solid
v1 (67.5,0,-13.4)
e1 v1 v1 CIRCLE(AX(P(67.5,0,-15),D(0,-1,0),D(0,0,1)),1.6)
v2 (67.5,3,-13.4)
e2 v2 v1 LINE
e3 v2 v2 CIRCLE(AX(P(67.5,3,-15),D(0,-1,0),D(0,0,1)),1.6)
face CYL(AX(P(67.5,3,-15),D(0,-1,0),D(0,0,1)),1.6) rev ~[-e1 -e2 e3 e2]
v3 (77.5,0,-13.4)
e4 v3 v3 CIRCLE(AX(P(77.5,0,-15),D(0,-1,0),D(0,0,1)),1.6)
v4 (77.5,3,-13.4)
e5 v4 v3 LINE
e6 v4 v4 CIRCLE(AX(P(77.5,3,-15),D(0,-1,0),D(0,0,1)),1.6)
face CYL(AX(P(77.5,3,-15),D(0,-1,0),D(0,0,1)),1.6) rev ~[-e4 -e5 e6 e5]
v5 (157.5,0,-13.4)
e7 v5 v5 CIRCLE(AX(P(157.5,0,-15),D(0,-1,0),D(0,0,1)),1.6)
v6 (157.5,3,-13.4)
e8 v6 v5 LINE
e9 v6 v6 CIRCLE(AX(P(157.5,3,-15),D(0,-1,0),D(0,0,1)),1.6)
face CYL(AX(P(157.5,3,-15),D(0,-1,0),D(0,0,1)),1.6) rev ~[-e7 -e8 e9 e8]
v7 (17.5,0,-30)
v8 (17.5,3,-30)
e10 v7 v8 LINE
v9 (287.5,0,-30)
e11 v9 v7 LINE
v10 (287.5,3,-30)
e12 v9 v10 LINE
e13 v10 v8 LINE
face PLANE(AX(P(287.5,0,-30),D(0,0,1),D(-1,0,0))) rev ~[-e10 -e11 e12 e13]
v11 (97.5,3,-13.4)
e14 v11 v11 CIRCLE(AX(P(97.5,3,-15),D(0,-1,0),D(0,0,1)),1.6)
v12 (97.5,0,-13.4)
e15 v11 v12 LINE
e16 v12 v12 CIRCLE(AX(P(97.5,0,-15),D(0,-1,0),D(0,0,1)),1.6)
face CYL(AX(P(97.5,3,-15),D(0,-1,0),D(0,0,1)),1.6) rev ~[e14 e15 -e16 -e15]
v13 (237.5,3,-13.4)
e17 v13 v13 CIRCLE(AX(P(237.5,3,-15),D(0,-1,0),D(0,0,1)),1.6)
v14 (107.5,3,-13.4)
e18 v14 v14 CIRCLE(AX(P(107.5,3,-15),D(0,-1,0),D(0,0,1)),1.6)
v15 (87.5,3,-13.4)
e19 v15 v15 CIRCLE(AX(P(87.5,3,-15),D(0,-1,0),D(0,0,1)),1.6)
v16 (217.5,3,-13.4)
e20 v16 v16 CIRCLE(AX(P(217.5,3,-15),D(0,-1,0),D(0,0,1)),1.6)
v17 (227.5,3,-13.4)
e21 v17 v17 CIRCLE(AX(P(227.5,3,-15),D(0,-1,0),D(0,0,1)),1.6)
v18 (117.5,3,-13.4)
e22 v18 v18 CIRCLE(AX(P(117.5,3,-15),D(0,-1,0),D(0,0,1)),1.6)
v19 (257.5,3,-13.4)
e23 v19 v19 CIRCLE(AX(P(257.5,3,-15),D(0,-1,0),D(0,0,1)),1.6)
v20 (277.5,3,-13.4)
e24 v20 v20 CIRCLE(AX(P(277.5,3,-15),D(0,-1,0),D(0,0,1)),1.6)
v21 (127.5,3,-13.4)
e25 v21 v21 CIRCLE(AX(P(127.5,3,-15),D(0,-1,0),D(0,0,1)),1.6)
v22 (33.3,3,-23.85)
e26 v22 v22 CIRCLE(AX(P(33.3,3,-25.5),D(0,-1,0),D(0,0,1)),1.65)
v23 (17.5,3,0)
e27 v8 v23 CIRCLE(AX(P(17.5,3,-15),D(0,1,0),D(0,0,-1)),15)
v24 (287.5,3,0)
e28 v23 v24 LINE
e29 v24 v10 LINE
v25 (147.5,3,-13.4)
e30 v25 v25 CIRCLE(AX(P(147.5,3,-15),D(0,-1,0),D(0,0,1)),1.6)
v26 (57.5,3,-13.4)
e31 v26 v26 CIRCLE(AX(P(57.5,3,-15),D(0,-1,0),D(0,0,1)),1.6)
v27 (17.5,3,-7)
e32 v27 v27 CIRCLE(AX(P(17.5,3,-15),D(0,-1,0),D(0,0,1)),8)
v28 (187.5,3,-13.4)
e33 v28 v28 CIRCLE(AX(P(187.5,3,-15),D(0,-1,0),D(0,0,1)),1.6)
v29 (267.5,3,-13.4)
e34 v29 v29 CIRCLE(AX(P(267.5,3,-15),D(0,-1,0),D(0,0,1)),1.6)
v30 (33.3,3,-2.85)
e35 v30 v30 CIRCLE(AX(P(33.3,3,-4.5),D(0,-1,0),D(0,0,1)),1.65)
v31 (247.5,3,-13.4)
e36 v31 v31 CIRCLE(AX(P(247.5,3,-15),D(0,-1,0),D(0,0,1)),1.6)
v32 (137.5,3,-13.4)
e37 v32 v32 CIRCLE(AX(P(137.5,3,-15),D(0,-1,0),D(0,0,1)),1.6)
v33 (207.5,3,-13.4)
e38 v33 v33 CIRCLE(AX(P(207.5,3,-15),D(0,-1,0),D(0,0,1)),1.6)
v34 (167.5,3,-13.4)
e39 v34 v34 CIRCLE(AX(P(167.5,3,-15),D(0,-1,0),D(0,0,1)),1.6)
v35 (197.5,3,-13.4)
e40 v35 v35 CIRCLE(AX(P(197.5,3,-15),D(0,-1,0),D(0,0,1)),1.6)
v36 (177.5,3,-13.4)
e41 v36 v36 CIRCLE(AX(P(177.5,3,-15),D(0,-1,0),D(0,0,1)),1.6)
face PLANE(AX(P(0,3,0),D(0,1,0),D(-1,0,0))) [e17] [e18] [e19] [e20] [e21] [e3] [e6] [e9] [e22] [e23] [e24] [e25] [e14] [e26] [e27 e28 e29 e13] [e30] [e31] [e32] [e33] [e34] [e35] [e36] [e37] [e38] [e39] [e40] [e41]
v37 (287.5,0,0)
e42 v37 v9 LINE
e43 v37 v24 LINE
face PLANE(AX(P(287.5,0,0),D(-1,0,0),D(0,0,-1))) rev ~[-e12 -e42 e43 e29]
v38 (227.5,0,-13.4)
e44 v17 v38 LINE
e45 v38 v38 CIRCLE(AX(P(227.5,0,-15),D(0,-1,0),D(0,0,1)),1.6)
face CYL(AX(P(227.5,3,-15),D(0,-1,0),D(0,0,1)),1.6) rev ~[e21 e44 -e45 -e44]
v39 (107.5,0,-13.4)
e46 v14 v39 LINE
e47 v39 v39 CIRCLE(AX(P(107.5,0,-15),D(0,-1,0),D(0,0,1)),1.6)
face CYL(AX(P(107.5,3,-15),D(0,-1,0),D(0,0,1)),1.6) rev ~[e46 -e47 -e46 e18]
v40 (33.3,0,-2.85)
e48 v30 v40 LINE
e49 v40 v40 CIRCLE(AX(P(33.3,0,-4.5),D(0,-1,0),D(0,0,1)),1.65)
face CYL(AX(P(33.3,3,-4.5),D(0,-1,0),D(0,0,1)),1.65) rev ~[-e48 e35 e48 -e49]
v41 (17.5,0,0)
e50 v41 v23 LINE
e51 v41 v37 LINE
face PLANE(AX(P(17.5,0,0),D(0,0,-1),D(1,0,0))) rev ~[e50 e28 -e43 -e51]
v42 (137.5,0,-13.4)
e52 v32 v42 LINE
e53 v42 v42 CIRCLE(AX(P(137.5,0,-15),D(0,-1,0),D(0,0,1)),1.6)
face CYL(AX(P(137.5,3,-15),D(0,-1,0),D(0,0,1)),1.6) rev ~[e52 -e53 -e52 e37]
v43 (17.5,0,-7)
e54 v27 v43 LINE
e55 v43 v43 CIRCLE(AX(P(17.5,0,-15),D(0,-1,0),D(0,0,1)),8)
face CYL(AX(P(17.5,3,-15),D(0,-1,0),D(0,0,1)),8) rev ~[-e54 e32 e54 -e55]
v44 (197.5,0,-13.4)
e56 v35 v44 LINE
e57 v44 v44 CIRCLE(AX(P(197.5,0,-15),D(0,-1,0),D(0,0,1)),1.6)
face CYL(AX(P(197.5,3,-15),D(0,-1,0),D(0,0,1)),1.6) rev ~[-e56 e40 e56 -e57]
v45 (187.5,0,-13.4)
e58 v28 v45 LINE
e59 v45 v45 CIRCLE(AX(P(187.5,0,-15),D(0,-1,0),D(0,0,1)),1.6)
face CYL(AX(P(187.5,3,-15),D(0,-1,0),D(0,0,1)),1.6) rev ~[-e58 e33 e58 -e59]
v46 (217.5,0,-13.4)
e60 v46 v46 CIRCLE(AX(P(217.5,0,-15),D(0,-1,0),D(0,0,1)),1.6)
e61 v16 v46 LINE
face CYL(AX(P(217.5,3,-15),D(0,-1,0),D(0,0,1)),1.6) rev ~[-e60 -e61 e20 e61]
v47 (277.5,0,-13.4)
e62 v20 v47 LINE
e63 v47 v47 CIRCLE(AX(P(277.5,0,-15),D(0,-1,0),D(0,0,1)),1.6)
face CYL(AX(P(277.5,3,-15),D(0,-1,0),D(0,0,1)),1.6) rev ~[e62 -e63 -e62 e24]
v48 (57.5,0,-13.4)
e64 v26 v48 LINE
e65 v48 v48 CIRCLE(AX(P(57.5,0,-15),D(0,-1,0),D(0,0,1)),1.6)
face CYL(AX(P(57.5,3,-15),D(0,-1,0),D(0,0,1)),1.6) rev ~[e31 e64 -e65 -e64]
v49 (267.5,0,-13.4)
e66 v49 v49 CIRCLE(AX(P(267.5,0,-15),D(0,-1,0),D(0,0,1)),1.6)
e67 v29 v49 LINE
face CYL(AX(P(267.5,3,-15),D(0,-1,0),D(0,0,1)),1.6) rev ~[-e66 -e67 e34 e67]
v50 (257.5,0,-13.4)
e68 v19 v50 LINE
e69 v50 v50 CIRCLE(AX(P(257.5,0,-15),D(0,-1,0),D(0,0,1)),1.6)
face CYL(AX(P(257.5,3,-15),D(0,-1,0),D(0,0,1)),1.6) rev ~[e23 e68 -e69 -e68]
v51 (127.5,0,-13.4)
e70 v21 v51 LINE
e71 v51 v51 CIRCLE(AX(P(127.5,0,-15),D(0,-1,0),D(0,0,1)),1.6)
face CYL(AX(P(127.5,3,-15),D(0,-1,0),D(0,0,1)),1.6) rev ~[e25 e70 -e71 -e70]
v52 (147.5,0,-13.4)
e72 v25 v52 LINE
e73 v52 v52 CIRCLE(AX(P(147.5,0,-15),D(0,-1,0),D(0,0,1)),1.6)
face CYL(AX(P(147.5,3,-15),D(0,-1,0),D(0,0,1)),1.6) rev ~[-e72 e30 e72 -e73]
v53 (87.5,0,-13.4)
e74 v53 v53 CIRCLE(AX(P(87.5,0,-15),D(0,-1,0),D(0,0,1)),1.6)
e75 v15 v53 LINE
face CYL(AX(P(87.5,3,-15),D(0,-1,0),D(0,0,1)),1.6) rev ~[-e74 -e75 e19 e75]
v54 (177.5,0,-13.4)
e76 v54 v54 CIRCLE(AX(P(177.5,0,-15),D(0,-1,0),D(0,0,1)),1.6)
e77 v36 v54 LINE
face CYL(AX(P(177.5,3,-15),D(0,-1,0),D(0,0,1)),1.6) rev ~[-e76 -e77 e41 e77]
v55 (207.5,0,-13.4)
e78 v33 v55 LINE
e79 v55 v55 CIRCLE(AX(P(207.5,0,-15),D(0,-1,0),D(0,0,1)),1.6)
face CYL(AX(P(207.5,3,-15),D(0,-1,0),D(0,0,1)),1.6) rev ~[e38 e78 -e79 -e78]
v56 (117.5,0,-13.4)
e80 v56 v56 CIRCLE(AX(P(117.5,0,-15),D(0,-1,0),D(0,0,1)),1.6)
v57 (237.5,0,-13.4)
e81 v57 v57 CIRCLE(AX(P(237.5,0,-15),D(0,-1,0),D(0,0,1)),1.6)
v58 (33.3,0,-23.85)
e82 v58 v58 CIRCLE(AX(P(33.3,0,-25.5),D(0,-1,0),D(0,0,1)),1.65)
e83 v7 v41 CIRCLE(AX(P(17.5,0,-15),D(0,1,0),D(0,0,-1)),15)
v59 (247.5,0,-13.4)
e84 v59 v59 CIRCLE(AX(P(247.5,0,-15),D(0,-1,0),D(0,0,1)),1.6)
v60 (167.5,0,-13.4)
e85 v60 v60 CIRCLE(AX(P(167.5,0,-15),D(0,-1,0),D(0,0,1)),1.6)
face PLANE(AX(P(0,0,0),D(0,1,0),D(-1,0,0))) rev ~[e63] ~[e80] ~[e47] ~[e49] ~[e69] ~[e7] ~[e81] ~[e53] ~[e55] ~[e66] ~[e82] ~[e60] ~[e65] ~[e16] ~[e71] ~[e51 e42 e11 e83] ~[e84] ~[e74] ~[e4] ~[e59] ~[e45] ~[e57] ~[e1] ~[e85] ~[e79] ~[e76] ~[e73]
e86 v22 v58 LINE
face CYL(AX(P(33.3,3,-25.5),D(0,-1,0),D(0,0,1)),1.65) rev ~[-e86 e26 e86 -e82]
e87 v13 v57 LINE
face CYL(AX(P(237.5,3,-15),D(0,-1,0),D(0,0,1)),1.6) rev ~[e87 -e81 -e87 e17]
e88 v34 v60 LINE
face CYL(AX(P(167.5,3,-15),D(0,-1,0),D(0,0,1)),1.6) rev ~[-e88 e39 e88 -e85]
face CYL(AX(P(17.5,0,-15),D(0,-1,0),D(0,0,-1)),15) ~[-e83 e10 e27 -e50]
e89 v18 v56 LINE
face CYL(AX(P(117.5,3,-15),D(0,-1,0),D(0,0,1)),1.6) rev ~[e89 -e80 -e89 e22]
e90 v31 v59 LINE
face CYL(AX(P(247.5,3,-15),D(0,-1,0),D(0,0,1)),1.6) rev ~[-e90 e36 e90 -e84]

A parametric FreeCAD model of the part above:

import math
import FreeCAD as App
import Part
import Sketcher
Q = App.Units.Quantity

doc = App.newDocument("Part")
params = doc.addObject("Spreadsheet::Sheet", "Params")
for row, (alias, value) in enumerate([
    ("sketch1_radius", "15 mm"),
    ("pad1_length", "3 mm"),
    ("sketch2_diameter", "16 mm"),
    ("hole_diameter", "16 mm"),
    ("sketch3_diameter", "3.3 mm"),
    ("hole2_diameter", "3.3 mm"),
    ("sketch4_diameter", "3.2 mm"),
    ("hole3_diameter", "3.2 mm"),
], start=1):
    params.set(f"A{row}", alias)
    params.set(f"B{row}", "=" + value)
    params.setAlias(f"B{row}", alias)

body = doc.addObject("PartDesign::Body", "Body")

# Sketch on XZ plane
sketch1 = doc.addObject("Sketcher::SketchObject", "Sketch")
body.addObject(sketch1)
sketch1.AttachmentSupport = (doc.XZ_Plane, [""])
sketch1.MapMode = "FlatFace"
sketch1.addGeometry(Part.ArcOfCircle(Part.Circle(App.Vector(18, -15, 0), App.Vector(0, 0, 1), 15), math.radians(90), math.radians(270)), False)
sketch1.addGeometry(Part.LineSegment(App.Vector(18, 0, 0), App.Vector(288, 0, 0)), False)
sketch1.addGeometry(Part.LineSegment(App.Vector(288, 0, 0), App.Vector(288, -30, 0)), False)
sketch1.addGeometry(Part.LineSegment(App.Vector(288, -30, 0), App.Vector(18, -30, 0)), False)
sketch1.addConstraint(Sketcher.Constraint("Tangent", 0, 1, 1, 1))
sketch1.addConstraint(Sketcher.Constraint("Coincident", 1, 2, 2, 1))
sketch1.addConstraint(Sketcher.Constraint("Coincident", 2, 2, 3, 1))
sketch1.addConstraint(Sketcher.Constraint("Tangent", 3, 2, 0, 2))
sketch1.addConstraint(Sketcher.Constraint("Horizontal", 1))
sketch1.addConstraint(Sketcher.Constraint("Vertical", 2))
sketch1.addConstraint(Sketcher.Constraint("Horizontal", 3))
sketch1.addConstraint(Sketcher.Constraint("PointOnObject", 0, 1, -1))
sketch1.addConstraint(Sketcher.Constraint("Radius", 0, Q("15 mm")))
sketch1.addConstraint(Sketcher.Constraint("DistanceX", -1, 1, 0, 3, Q("17.5 mm")))
sketch1.addConstraint(Sketcher.Constraint("DistanceX", -1, 1, 1, 2, Q("287.5 mm")))
sketch1.setExpression("Constraints[8]", "Params.sketch1_radius")
pad1 = doc.addObject("PartDesign::Pad", "Pad")
body.addObject(pad1)
pad1.Profile = sketch1
pad1.setExpression("Length", "Params.pad1_length")
pad1.Reversed = True

# Sketch on XZ plane
sketch2 = doc.addObject("Sketcher::SketchObject", "Sketch001")
body.addObject(sketch2)
sketch2.AttachmentSupport = (doc.XZ_Plane, [""])
sketch2.MapMode = "FlatFace"
sketch2.AttachmentOffset = App.Placement(App.Vector(0, 0, -3), App.Rotation())
sketch2.addGeometry(Part.Circle(App.Vector(18, -15, 0), App.Vector(0, 0, 1), 8), False)
sketch2.addConstraint(Sketcher.Constraint("Diameter", 0, Q("16 mm")))
sketch2.addConstraint(Sketcher.Constraint("DistanceY", 0, 3, -1, 1, Q("15 mm")))
sketch2.addConstraint(Sketcher.Constraint("DistanceX", -1, 1, 0, 3, Q("17.5 mm")))
sketch2.setExpression("Constraints[0]", "Params.sketch2_diameter")
doc.recompute()
hole = doc.addObject("PartDesign::Hole", "Hole")
body.addObject(hole)
hole.Profile = sketch2
hole.ThreadType = "None"
hole.setExpression("Diameter", "Params.hole_diameter")
hole.DepthType = "ThroughAll"
hole.Reversed = True

# Sketch on XZ plane
sketch3 = doc.addObject("Sketcher::SketchObject", "Sketch002")
body.addObject(sketch3)
sketch3.AttachmentSupport = (doc.XZ_Plane, [""])
sketch3.MapMode = "FlatFace"
sketch3.AttachmentOffset = App.Placement(App.Vector(0, 0, -3), App.Rotation())
sketch3.addGeometry(Part.Circle(App.Vector(33.3, -4.5, 0), App.Vector(0, 0, 1), 1.6), False)
sketch3.addGeometry(Part.Circle(App.Vector(33.3, -25.5, 0), App.Vector(0, 0, 1), 1.6), False)
sketch3.addConstraint(Sketcher.Constraint("Equal", 0, 1))
sketch3.addConstraint(Sketcher.Constraint("Vertical", 0, 3, 1, 3))
sketch3.addConstraint(Sketcher.Constraint("Diameter", 0, Q("3.3 mm")))
sketch3.addConstraint(Sketcher.Constraint("DistanceY", 1, 3, 0, 3, Q("21 mm")))
sketch3.addConstraint(Sketcher.Constraint("DistanceX", -1, 1, 0, 3, Q("33.3 mm")))
sketch3.addConstraint(Sketcher.Constraint("DistanceY", 0, 3, -1, 1, Q("4.5 mm")))
sketch3.setExpression("Constraints[2]", "Params.sketch3_diameter")
doc.recompute()
hole2 = doc.addObject("PartDesign::Hole", "Hole001")
body.addObject(hole2)
hole2.Profile = sketch3
hole2.ThreadType = "None"
hole2.setExpression("Diameter", "Params.hole2_diameter")
hole2.DepthType = "ThroughAll"
hole2.Reversed = True

# Sketch on XZ plane
sketch4 = doc.addObject("Sketcher::SketchObject", "Sketch003")
body.addObject(sketch4)
sketch4.AttachmentSupport = (doc.XZ_Plane, [""])
sketch4.MapMode = "FlatFace"
sketch4.AttachmentOffset = App.Placement(App.Vector(0, 0, -3), App.Rotation())
sketch4.addGeometry(Part.Circle(App.Vector(57.5, -15, 0), App.Vector(0, 0, 1), 1.6), False)
sketch4.addGeometry(Part.Circle(App.Vector(67.5, -15, 0), App.Vector(0, 0, 1), 1.6), False)
sketch4.addGeometry(Part.Circle(App.Vector(77.5, -15, 0), App.Vector(0, 0, 1), 1.6), False)
sketch4.addGeometry(Part.Circle(App.Vector(87.5, -15, 0), App.Vector(0, 0, 1), 1.6), False)
sketch4.addGeometry(Part.Circle(App.Vector(97.5, -15, 0), App.Vector(0, 0, 1), 1.6), False)
sketch4.addGeometry(Part.Circle(App.Vector(107.5, -15, 0), App.Vector(0, 0, 1), 1.6), False)
sketch4.addGeometry(Part.Circle(App.Vector(117.5, -15, 0), App.Vector(0, 0, 1), 1.6), False)
sketch4.addGeometry(Part.Circle(App.Vector(127.5, -15, 0), App.Vector(0, 0, 1), 1.6), False)
sketch4.addGeometry(Part.Circle(App.Vector(137.5, -15, 0), App.Vector(0, 0, 1), 1.6), False)
sketch4.addGeometry(Part.Circle(App.Vector(147.5, -15, 0), App.Vector(0, 0, 1), 1.6), False)
sketch4.addGeometry(Part.Circle(App.Vector(157.5, -15, 0), App.Vector(0, 0, 1), 1.6), False)
sketch4.addGeometry(Part.Circle(App.Vector(167.5, -15, 0), App.Vector(0, 0, 1), 1.6), False)
sketch4.addGeometry(Part.Circle(App.Vector(177.5, -15, 0), App.Vector(0, 0, 1), 1.6), False)
sketch4.addGeometry(Part.Circle(App.Vector(187.5, -15, 0), App.Vector(0, 0, 1), 1.6), False)
sketch4.addGeometry(Part.Circle(App.Vector(197.5, -15, 0), App.Vector(0, 0, 1), 1.6), False)
sketch4.addGeometry(Part.Circle(App.Vector(207.5, -15, 0), App.Vector(0, 0, 1), 1.6), False)
sketch4.addGeometry(Part.Circle(App.Vector(217.5, -15, 0), App.Vector(0, 0, 1), 1.6), False)
sketch4.addGeometry(Part.Circle(App.Vector(227.5, -15, 0), App.Vector(0, 0, 1), 1.6), False)
sketch4.addGeometry(Part.Circle(App.Vector(237.5, -15, 0), App.Vector(0, 0, 1), 1.6), False)
sketch4.addGeometry(Part.Circle(App.Vector(247.5, -15, 0), App.Vector(0, 0, 1), 1.6), False)
sketch4.addGeometry(Part.Circle(App.Vector(257.5, -15, 0), App.Vector(0, 0, 1), 1.6), False)
sketch4.addGeometry(Part.Circle(App.Vector(267.5, -15, 0), App.Vector(0, 0, 1), 1.6), False)
sketch4.addGeometry(Part.Circle(App.Vector(277.5, -15, 0), App.Vector(0, 0, 1), 1.6), False)
sketch4.addConstraint(Sketcher.Constraint("Equal", 0, 1))
sketch4.addConstraint(Sketcher.Constraint("Equal", 1, 2))
sketch4.addConstraint(Sketcher.Constraint("Equal", 2, 3))
sketch4.addConstraint(Sketcher.Constraint("Equal", 3, 4))
sketch4.addConstraint(Sketcher.Constraint("Equal", 4, 5))
sketch4.addConstraint(Sketcher.Constraint("Equal", 5, 6))
sketch4.addConstraint(Sketcher.Constraint("Equal", 6, 7))
sketch4.addConstraint(Sketcher.Constraint("Equal", 7, 8))
sketch4.addConstraint(Sketcher.Constraint("Equal", 8, 9))
sketch4.addConstraint(Sketcher.Constraint("Equal", 9, 10))
sketch4.addConstraint(Sketcher.Constraint("Equal", 10, 11))
sketch4.addConstraint(Sketcher.Constraint("Equal", 11, 12))
sketch4.addConstraint(Sketcher.Constraint("Equal", 12, 13))
sketch4.addConstraint(Sketcher.Constraint("Equal", 13, 14))
sketch4.addConstraint(Sketcher.Constraint("Equal", 14, 15))
sketch4.addConstraint(Sketcher.Constraint("Equal", 15, 16))
sketch4.addConstraint(Sketcher.Constraint("Equal", 16, 17))
sketch4.addConstraint(Sketcher.Constraint("Equal", 17, 18))
sketch4.addConstraint(Sketcher.Constraint("Equal", 18, 19))
sketch4.addConstraint(Sketcher.Constraint("Equal", 19, 20))
sketch4.addConstraint(Sketcher.Constraint("Equal", 20, 21))
sketch4.addConstraint(Sketcher.Constraint("Equal", 21, 22))
sketch4.addConstraint(Sketcher.Constraint("Horizontal", 0, 3, 1, 3))
sketch4.addConstraint(Sketcher.Constraint("Horizontal", 1, 3, 2, 3))
sketch4.addConstraint(Sketcher.Constraint("Horizontal", 2, 3, 3, 3))
sketch4.addConstraint(Sketcher.Constraint("Horizontal", 3, 3, 4, 3))
sketch4.addConstraint(Sketcher.Constraint("Horizontal", 4, 3, 5, 3))
sketch4.addConstraint(Sketcher.Constraint("Horizontal", 5, 3, 6, 3))
sketch4.addConstraint(Sketcher.Constraint("Horizontal", 6, 3, 7, 3))
sketch4.addConstraint(Sketcher.Constraint("Horizontal", 7, 3, 8, 3))
sketch4.addConstraint(Sketcher.Constraint("Horizontal", 8, 3, 9, 3))
sketch4.addConstraint(Sketcher.Constraint("Horizontal", 9, 3, 10, 3))
sketch4.addConstraint(Sketcher.Constraint("Horizontal", 10, 3, 11, 3))
sketch4.addConstraint(Sketcher.Constraint("Horizontal", 11, 3, 12, 3))
sketch4.addConstraint(Sketcher.Constraint("Horizontal", 12, 3, 13, 3))
sketch4.addConstraint(Sketcher.Constraint("Horizontal", 13, 3, 14, 3))
sketch4.addConstraint(Sketcher.Constraint("Horizontal", 14, 3, 15, 3))
sketch4.addConstraint(Sketcher.Constraint("Horizontal", 15, 3, 16, 3))
sketch4.addConstraint(Sketcher.Constraint("Horizontal", 16, 3, 17, 3))
sketch4.addConstraint(Sketcher.Constraint("Horizontal", 17, 3, 18, 3))
sketch4.addConstraint(Sketcher.Constraint("Horizontal", 18, 3, 19, 3))
sketch4.addConstraint(Sketcher.Constraint("Horizontal", 19, 3, 20, 3))
sketch4.addConstraint(Sketcher.Constraint("Horizontal", 20, 3, 21, 3))
sketch4.addConstraint(Sketcher.Constraint("Horizontal", 21, 3, 22, 3))
sketch4.addConstraint(Sketcher.Constraint("Diameter", 0, Q("3.2 mm")))
sketch4.addConstraint(Sketcher.Constraint("DistanceY", 0, 3, -1, 1, Q("15 mm")))
sketch4.addConstraint(Sketcher.Constraint("DistanceX", 0, 3, 1, 3, Q("10 mm")))
sketch4.addConstraint(Sketcher.Constraint("DistanceX", 1, 3, 2, 3, Q("10 mm")))
sketch4.addConstraint(Sketcher.Constraint("DistanceX", 2, 3, 3, 3, Q("10 mm")))
sketch4.addConstraint(Sketcher.Constraint("DistanceX", 3, 3, 4, 3, Q("10 mm")))
sketch4.addConstraint(Sketcher.Constraint("DistanceX", 4, 3, 5, 3, Q("10 mm")))
sketch4.addConstraint(Sketcher.Constraint("DistanceX", 5, 3, 6, 3, Q("10 mm")))
sketch4.addConstraint(Sketcher.Constraint("DistanceX", 6, 3, 7, 3, Q("10 mm")))
sketch4.addConstraint(Sketcher.Constraint("DistanceX", 7, 3, 8, 3, Q("10 mm")))
sketch4.addConstraint(Sketcher.Constraint("DistanceX", 8, 3, 9, 3, Q("10 mm")))
sketch4.addConstraint(Sketcher.Constraint("DistanceX", 9, 3, 10, 3, Q("10 mm")))
sketch4.addConstraint(Sketcher.Constraint("DistanceX", 10, 3, 11, 3, Q("10 mm")))
sketch4.addConstraint(Sketcher.Constraint("DistanceX", 11, 3, 12, 3, Q("10 mm")))
sketch4.addConstraint(Sketcher.Constraint("DistanceX", 12, 3, 13, 3, Q("10 mm")))
sketch4.addConstraint(Sketcher.Constraint("DistanceX", 13, 3, 14, 3, Q("10 mm")))
sketch4.addConstraint(Sketcher.Constraint("DistanceX", 14, 3, 15, 3, Q("10 mm")))
sketch4.addConstraint(Sketcher.Constraint("DistanceX", 15, 3, 16, 3, Q("10 mm")))
sketch4.addConstraint(Sketcher.Constraint("DistanceX", 16, 3, 17, 3, Q("10 mm")))
sketch4.addConstraint(Sketcher.Constraint("DistanceX", 17, 3, 18, 3, Q("10 mm")))
sketch4.addConstraint(Sketcher.Constraint("DistanceX", 18, 3, 19, 3, Q("10 mm")))
sketch4.addConstraint(Sketcher.Constraint("DistanceX", 19, 3, 20, 3, Q("10 mm")))
sketch4.addConstraint(Sketcher.Constraint("DistanceX", 20, 3, 21, 3, Q("10 mm")))
sketch4.addConstraint(Sketcher.Constraint("DistanceX", 21, 3, 22, 3, Q("10 mm")))
sketch4.addConstraint(Sketcher.Constraint("DistanceX", -1, 1, 0, 3, Q("57.5 mm")))
sketch4.setExpression("Constraints[44]", "Params.sketch4_diameter")
doc.recompute()
hole3 = doc.addObject("PartDesign::Hole", "Hole002")
body.addObject(hole3)
hole3.Profile = sketch4
hole3.ThreadType = "None"
hole3.setExpression("Diameter", "Params.hole3_diameter")
hole3.DepthType = "ThroughAll"
hole3.Reversed = True

doc.recompute()
